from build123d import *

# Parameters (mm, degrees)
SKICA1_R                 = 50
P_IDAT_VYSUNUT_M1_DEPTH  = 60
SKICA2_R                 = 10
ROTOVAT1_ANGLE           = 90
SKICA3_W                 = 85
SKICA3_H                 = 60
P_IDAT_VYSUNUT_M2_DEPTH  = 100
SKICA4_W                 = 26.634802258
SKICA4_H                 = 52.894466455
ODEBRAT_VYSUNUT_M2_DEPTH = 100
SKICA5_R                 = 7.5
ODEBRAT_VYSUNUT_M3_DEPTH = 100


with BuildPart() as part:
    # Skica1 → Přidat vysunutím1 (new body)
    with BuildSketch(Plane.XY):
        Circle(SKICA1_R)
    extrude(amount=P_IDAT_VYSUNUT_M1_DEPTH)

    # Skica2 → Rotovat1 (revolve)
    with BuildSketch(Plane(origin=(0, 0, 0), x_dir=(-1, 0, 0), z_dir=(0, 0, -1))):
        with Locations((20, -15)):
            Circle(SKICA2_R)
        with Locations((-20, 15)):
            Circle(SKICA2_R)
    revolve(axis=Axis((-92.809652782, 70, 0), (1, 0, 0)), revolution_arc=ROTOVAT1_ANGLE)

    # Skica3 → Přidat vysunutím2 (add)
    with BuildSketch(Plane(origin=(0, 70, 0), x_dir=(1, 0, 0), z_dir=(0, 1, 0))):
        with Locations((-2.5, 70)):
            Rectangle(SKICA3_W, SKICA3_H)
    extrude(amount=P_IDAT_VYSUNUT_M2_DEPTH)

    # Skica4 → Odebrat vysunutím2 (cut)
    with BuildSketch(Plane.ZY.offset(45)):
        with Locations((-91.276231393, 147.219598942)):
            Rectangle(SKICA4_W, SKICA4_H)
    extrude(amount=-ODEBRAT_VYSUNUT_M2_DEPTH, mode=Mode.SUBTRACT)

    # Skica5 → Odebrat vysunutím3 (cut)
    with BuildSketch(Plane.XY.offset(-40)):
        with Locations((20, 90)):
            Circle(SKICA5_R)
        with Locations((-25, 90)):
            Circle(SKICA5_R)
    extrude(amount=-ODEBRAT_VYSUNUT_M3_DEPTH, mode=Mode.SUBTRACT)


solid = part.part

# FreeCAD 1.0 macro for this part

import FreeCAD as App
import Part
import Sketcher

doc = App.newDocument("Part")
body = doc.addObject("PartDesign::Body", "Body")

sketch1 = body.newObject("Sketcher::SketchObject", "Sketch")
sketch1.AttachmentSupport = (doc.getObject("XY_Plane"), [""])
sketch1.MapMode = "FlatFace"
sketch1.addGeometry(Part.Circle(App.Vector(0, 0, 0), App.Vector(0, 0, 1), 50), False)
sketch1.addConstraint([
    Sketcher.Constraint("Coincident", 0, 3, -1, 1),
    Sketcher.Constraint("Diameter", 0, 100.0),
])
pad1 = body.newObject("PartDesign::Pad", "Pad")
pad1.Profile = sketch1
pad1.Length = 60

sketch2 = body.newObject("Sketcher::SketchObject", "Sketch001")
sketch2.AttachmentSupport = (doc.getObject("XY_Plane"), [""])
sketch2.MapMode = "FlatFace"
sketch2.addGeometry([
    Part.Circle(App.Vector(-20, -15, 0), App.Vector(0, 0, 1), 10),
    Part.Circle(App.Vector(20, 15, 0), App.Vector(0, 0, 1), 10),
], False)
sketch2.addGeometry(Part.LineSegment(App.Vector(-20, 70, 0), App.Vector(20, 70, 0)), True)
sketch2.addConstraint([
    Sketcher.Constraint("Horizontal", 2),
    Sketcher.Constraint("Equal", 0, 1),
    Sketcher.Constraint("Symmetric", 0, 3, 1, 3, -1, 1),
    Sketcher.Constraint("Vertical", 0, 3, 2, 1),
    Sketcher.Constraint("Vertical", 1, 3, 2, 2),
    Sketcher.Constraint("Diameter", 0, 20.0),
    Sketcher.Constraint("DistanceX", 2, 1, 2, 2, 40.0),
    Sketcher.Constraint("DistanceY", 0, 3, -1, 1, 15.0),
    Sketcher.Constraint("DistanceY", -1, 1, 2, 1, 70.0),
])
revolution = body.newObject("PartDesign::Revolution", "Revolution")
revolution.Profile = sketch2
revolution.ReferenceAxis = (sketch2, ["Axis0"])
revolution.Angle = 90

sketch3 = body.newObject("Sketcher::SketchObject", "Sketch002")
sketch3.AttachmentSupport = (doc.getObject("XZ_Plane"), [""])
sketch3.MapMode = "FlatFace"
sketch3.AttachmentOffset = App.Placement(App.Vector(0, 0, -70), App.Rotation())
sketch3.addGeometry([
    Part.LineSegment(App.Vector(-45, -100, 0), App.Vector(-45, -40, 0)),
    Part.LineSegment(App.Vector(-45, -40, 0), App.Vector(40, -40, 0)),
    Part.LineSegment(App.Vector(40, -40, 0), App.Vector(40, -100, 0)),
    Part.LineSegment(App.Vector(40, -100, 0), App.Vector(-45, -100, 0)),
], False)
sketch3.addConstraint([
    Sketcher.Constraint("Coincident", 0, 2, 1, 1),
    Sketcher.Constraint("Coincident", 1, 2, 2, 1),
    Sketcher.Constraint("Coincident", 2, 2, 3, 1),
    Sketcher.Constraint("Coincident", 3, 2, 0, 1),
    Sketcher.Constraint("Vertical", 0),
    Sketcher.Constraint("Horizontal", 1),
    Sketcher.Constraint("Vertical", 2),
    Sketcher.Constraint("Horizontal", 3),
    Sketcher.Constraint("DistanceX", 1, 1, 1, 2, 85.0),
    Sketcher.Constraint("DistanceY", 0, 1, 0, 2, 60.0),
    Sketcher.Constraint("DistanceX", 0, 2, -1, 1, 45.0),
    Sketcher.Constraint("DistanceY", 0, 2, -1, 1, 40.0),
])
pad2 = body.newObject("PartDesign::Pad", "Pad001")
pad2.Profile = sketch3
pad2.Length = 100
pad2.Reversed = True

sketch4 = body.newObject("Sketcher::SketchObject", "Sketch003")
sketch4.AttachmentSupport = (doc.getObject("YZ_Plane"), [""])
sketch4.MapMode = "FlatFace"
sketch4.AttachmentOffset = App.Placement(App.Vector(0, 0, -45), App.Rotation())
sketch4.addGeometry([
    Part.LineSegment(App.Vector(174, -105, 0), App.Vector(121, -105, 0)),
    Part.LineSegment(App.Vector(121, -105, 0), App.Vector(121, -78, 0)),
    Part.LineSegment(App.Vector(121, -78, 0), App.Vector(174, -78, 0)),
    Part.LineSegment(App.Vector(174, -78, 0), App.Vector(174, -105, 0)),
], False)
sketch4.addConstraint([
    Sketcher.Constraint("Coincident", 0, 2, 1, 1),
    Sketcher.Constraint("Coincident", 1, 2, 2, 1),
    Sketcher.Constraint("Coincident", 2, 2, 3, 1),
    Sketcher.Constraint("Coincident", 3, 2, 0, 1),
    Sketcher.Constraint("Horizontal", 0),
    Sketcher.Constraint("Vertical", 1),
    Sketcher.Constraint("Horizontal", 2),
    Sketcher.Constraint("Vertical", 3),
    Sketcher.Constraint("DistanceX", 0, 2, 0, 1, 52.894466),
    Sketcher.Constraint("DistanceY", 1, 1, 1, 2, 26.634802),
    Sketcher.Constraint("DistanceY", 1, 2, -1, 1, 77.95883),
    Sketcher.Constraint("DistanceX", -1, 1, 0, 2, 120.772366),
])
pocket1 = body.newObject("PartDesign::Pocket", "Pocket")
pocket1.Profile = sketch4
pocket1.Length = 100
pocket1.Reversed = True

sketch5 = body.newObject("Sketcher::SketchObject", "Sketch004")
sketch5.AttachmentSupport = (doc.getObject("XY_Plane"), [""])
sketch5.MapMode = "FlatFace"
sketch5.AttachmentOffset = App.Placement(App.Vector(0, 0, -40), App.Rotation())
sketch5.addGeometry([
    Part.Circle(App.Vector(20, 90, 0), App.Vector(0, 0, 1), 8),
    Part.Circle(App.Vector(-25, 90, 0), App.Vector(0, 0, 1), 8),
], False)
sketch5.addConstraint([
    Sketcher.Constraint("Equal", 0, 1),
    Sketcher.Constraint("Horizontal", 0, 3, 1, 3),
    Sketcher.Constraint("Diameter", 0, 15.0),
    Sketcher.Constraint("DistanceX", -1, 1, 0, 3, 20.0),
    Sketcher.Constraint("DistanceY", -1, 1, 0, 3, 90.0),
    Sketcher.Constraint("DistanceX", 1, 3, -1, 1, 25.0),
])
pocket2 = body.newObject("PartDesign::Pocket", "Pocket001")
pocket2.Profile = sketch5
pocket2.Length = 100

doc.recompute()
